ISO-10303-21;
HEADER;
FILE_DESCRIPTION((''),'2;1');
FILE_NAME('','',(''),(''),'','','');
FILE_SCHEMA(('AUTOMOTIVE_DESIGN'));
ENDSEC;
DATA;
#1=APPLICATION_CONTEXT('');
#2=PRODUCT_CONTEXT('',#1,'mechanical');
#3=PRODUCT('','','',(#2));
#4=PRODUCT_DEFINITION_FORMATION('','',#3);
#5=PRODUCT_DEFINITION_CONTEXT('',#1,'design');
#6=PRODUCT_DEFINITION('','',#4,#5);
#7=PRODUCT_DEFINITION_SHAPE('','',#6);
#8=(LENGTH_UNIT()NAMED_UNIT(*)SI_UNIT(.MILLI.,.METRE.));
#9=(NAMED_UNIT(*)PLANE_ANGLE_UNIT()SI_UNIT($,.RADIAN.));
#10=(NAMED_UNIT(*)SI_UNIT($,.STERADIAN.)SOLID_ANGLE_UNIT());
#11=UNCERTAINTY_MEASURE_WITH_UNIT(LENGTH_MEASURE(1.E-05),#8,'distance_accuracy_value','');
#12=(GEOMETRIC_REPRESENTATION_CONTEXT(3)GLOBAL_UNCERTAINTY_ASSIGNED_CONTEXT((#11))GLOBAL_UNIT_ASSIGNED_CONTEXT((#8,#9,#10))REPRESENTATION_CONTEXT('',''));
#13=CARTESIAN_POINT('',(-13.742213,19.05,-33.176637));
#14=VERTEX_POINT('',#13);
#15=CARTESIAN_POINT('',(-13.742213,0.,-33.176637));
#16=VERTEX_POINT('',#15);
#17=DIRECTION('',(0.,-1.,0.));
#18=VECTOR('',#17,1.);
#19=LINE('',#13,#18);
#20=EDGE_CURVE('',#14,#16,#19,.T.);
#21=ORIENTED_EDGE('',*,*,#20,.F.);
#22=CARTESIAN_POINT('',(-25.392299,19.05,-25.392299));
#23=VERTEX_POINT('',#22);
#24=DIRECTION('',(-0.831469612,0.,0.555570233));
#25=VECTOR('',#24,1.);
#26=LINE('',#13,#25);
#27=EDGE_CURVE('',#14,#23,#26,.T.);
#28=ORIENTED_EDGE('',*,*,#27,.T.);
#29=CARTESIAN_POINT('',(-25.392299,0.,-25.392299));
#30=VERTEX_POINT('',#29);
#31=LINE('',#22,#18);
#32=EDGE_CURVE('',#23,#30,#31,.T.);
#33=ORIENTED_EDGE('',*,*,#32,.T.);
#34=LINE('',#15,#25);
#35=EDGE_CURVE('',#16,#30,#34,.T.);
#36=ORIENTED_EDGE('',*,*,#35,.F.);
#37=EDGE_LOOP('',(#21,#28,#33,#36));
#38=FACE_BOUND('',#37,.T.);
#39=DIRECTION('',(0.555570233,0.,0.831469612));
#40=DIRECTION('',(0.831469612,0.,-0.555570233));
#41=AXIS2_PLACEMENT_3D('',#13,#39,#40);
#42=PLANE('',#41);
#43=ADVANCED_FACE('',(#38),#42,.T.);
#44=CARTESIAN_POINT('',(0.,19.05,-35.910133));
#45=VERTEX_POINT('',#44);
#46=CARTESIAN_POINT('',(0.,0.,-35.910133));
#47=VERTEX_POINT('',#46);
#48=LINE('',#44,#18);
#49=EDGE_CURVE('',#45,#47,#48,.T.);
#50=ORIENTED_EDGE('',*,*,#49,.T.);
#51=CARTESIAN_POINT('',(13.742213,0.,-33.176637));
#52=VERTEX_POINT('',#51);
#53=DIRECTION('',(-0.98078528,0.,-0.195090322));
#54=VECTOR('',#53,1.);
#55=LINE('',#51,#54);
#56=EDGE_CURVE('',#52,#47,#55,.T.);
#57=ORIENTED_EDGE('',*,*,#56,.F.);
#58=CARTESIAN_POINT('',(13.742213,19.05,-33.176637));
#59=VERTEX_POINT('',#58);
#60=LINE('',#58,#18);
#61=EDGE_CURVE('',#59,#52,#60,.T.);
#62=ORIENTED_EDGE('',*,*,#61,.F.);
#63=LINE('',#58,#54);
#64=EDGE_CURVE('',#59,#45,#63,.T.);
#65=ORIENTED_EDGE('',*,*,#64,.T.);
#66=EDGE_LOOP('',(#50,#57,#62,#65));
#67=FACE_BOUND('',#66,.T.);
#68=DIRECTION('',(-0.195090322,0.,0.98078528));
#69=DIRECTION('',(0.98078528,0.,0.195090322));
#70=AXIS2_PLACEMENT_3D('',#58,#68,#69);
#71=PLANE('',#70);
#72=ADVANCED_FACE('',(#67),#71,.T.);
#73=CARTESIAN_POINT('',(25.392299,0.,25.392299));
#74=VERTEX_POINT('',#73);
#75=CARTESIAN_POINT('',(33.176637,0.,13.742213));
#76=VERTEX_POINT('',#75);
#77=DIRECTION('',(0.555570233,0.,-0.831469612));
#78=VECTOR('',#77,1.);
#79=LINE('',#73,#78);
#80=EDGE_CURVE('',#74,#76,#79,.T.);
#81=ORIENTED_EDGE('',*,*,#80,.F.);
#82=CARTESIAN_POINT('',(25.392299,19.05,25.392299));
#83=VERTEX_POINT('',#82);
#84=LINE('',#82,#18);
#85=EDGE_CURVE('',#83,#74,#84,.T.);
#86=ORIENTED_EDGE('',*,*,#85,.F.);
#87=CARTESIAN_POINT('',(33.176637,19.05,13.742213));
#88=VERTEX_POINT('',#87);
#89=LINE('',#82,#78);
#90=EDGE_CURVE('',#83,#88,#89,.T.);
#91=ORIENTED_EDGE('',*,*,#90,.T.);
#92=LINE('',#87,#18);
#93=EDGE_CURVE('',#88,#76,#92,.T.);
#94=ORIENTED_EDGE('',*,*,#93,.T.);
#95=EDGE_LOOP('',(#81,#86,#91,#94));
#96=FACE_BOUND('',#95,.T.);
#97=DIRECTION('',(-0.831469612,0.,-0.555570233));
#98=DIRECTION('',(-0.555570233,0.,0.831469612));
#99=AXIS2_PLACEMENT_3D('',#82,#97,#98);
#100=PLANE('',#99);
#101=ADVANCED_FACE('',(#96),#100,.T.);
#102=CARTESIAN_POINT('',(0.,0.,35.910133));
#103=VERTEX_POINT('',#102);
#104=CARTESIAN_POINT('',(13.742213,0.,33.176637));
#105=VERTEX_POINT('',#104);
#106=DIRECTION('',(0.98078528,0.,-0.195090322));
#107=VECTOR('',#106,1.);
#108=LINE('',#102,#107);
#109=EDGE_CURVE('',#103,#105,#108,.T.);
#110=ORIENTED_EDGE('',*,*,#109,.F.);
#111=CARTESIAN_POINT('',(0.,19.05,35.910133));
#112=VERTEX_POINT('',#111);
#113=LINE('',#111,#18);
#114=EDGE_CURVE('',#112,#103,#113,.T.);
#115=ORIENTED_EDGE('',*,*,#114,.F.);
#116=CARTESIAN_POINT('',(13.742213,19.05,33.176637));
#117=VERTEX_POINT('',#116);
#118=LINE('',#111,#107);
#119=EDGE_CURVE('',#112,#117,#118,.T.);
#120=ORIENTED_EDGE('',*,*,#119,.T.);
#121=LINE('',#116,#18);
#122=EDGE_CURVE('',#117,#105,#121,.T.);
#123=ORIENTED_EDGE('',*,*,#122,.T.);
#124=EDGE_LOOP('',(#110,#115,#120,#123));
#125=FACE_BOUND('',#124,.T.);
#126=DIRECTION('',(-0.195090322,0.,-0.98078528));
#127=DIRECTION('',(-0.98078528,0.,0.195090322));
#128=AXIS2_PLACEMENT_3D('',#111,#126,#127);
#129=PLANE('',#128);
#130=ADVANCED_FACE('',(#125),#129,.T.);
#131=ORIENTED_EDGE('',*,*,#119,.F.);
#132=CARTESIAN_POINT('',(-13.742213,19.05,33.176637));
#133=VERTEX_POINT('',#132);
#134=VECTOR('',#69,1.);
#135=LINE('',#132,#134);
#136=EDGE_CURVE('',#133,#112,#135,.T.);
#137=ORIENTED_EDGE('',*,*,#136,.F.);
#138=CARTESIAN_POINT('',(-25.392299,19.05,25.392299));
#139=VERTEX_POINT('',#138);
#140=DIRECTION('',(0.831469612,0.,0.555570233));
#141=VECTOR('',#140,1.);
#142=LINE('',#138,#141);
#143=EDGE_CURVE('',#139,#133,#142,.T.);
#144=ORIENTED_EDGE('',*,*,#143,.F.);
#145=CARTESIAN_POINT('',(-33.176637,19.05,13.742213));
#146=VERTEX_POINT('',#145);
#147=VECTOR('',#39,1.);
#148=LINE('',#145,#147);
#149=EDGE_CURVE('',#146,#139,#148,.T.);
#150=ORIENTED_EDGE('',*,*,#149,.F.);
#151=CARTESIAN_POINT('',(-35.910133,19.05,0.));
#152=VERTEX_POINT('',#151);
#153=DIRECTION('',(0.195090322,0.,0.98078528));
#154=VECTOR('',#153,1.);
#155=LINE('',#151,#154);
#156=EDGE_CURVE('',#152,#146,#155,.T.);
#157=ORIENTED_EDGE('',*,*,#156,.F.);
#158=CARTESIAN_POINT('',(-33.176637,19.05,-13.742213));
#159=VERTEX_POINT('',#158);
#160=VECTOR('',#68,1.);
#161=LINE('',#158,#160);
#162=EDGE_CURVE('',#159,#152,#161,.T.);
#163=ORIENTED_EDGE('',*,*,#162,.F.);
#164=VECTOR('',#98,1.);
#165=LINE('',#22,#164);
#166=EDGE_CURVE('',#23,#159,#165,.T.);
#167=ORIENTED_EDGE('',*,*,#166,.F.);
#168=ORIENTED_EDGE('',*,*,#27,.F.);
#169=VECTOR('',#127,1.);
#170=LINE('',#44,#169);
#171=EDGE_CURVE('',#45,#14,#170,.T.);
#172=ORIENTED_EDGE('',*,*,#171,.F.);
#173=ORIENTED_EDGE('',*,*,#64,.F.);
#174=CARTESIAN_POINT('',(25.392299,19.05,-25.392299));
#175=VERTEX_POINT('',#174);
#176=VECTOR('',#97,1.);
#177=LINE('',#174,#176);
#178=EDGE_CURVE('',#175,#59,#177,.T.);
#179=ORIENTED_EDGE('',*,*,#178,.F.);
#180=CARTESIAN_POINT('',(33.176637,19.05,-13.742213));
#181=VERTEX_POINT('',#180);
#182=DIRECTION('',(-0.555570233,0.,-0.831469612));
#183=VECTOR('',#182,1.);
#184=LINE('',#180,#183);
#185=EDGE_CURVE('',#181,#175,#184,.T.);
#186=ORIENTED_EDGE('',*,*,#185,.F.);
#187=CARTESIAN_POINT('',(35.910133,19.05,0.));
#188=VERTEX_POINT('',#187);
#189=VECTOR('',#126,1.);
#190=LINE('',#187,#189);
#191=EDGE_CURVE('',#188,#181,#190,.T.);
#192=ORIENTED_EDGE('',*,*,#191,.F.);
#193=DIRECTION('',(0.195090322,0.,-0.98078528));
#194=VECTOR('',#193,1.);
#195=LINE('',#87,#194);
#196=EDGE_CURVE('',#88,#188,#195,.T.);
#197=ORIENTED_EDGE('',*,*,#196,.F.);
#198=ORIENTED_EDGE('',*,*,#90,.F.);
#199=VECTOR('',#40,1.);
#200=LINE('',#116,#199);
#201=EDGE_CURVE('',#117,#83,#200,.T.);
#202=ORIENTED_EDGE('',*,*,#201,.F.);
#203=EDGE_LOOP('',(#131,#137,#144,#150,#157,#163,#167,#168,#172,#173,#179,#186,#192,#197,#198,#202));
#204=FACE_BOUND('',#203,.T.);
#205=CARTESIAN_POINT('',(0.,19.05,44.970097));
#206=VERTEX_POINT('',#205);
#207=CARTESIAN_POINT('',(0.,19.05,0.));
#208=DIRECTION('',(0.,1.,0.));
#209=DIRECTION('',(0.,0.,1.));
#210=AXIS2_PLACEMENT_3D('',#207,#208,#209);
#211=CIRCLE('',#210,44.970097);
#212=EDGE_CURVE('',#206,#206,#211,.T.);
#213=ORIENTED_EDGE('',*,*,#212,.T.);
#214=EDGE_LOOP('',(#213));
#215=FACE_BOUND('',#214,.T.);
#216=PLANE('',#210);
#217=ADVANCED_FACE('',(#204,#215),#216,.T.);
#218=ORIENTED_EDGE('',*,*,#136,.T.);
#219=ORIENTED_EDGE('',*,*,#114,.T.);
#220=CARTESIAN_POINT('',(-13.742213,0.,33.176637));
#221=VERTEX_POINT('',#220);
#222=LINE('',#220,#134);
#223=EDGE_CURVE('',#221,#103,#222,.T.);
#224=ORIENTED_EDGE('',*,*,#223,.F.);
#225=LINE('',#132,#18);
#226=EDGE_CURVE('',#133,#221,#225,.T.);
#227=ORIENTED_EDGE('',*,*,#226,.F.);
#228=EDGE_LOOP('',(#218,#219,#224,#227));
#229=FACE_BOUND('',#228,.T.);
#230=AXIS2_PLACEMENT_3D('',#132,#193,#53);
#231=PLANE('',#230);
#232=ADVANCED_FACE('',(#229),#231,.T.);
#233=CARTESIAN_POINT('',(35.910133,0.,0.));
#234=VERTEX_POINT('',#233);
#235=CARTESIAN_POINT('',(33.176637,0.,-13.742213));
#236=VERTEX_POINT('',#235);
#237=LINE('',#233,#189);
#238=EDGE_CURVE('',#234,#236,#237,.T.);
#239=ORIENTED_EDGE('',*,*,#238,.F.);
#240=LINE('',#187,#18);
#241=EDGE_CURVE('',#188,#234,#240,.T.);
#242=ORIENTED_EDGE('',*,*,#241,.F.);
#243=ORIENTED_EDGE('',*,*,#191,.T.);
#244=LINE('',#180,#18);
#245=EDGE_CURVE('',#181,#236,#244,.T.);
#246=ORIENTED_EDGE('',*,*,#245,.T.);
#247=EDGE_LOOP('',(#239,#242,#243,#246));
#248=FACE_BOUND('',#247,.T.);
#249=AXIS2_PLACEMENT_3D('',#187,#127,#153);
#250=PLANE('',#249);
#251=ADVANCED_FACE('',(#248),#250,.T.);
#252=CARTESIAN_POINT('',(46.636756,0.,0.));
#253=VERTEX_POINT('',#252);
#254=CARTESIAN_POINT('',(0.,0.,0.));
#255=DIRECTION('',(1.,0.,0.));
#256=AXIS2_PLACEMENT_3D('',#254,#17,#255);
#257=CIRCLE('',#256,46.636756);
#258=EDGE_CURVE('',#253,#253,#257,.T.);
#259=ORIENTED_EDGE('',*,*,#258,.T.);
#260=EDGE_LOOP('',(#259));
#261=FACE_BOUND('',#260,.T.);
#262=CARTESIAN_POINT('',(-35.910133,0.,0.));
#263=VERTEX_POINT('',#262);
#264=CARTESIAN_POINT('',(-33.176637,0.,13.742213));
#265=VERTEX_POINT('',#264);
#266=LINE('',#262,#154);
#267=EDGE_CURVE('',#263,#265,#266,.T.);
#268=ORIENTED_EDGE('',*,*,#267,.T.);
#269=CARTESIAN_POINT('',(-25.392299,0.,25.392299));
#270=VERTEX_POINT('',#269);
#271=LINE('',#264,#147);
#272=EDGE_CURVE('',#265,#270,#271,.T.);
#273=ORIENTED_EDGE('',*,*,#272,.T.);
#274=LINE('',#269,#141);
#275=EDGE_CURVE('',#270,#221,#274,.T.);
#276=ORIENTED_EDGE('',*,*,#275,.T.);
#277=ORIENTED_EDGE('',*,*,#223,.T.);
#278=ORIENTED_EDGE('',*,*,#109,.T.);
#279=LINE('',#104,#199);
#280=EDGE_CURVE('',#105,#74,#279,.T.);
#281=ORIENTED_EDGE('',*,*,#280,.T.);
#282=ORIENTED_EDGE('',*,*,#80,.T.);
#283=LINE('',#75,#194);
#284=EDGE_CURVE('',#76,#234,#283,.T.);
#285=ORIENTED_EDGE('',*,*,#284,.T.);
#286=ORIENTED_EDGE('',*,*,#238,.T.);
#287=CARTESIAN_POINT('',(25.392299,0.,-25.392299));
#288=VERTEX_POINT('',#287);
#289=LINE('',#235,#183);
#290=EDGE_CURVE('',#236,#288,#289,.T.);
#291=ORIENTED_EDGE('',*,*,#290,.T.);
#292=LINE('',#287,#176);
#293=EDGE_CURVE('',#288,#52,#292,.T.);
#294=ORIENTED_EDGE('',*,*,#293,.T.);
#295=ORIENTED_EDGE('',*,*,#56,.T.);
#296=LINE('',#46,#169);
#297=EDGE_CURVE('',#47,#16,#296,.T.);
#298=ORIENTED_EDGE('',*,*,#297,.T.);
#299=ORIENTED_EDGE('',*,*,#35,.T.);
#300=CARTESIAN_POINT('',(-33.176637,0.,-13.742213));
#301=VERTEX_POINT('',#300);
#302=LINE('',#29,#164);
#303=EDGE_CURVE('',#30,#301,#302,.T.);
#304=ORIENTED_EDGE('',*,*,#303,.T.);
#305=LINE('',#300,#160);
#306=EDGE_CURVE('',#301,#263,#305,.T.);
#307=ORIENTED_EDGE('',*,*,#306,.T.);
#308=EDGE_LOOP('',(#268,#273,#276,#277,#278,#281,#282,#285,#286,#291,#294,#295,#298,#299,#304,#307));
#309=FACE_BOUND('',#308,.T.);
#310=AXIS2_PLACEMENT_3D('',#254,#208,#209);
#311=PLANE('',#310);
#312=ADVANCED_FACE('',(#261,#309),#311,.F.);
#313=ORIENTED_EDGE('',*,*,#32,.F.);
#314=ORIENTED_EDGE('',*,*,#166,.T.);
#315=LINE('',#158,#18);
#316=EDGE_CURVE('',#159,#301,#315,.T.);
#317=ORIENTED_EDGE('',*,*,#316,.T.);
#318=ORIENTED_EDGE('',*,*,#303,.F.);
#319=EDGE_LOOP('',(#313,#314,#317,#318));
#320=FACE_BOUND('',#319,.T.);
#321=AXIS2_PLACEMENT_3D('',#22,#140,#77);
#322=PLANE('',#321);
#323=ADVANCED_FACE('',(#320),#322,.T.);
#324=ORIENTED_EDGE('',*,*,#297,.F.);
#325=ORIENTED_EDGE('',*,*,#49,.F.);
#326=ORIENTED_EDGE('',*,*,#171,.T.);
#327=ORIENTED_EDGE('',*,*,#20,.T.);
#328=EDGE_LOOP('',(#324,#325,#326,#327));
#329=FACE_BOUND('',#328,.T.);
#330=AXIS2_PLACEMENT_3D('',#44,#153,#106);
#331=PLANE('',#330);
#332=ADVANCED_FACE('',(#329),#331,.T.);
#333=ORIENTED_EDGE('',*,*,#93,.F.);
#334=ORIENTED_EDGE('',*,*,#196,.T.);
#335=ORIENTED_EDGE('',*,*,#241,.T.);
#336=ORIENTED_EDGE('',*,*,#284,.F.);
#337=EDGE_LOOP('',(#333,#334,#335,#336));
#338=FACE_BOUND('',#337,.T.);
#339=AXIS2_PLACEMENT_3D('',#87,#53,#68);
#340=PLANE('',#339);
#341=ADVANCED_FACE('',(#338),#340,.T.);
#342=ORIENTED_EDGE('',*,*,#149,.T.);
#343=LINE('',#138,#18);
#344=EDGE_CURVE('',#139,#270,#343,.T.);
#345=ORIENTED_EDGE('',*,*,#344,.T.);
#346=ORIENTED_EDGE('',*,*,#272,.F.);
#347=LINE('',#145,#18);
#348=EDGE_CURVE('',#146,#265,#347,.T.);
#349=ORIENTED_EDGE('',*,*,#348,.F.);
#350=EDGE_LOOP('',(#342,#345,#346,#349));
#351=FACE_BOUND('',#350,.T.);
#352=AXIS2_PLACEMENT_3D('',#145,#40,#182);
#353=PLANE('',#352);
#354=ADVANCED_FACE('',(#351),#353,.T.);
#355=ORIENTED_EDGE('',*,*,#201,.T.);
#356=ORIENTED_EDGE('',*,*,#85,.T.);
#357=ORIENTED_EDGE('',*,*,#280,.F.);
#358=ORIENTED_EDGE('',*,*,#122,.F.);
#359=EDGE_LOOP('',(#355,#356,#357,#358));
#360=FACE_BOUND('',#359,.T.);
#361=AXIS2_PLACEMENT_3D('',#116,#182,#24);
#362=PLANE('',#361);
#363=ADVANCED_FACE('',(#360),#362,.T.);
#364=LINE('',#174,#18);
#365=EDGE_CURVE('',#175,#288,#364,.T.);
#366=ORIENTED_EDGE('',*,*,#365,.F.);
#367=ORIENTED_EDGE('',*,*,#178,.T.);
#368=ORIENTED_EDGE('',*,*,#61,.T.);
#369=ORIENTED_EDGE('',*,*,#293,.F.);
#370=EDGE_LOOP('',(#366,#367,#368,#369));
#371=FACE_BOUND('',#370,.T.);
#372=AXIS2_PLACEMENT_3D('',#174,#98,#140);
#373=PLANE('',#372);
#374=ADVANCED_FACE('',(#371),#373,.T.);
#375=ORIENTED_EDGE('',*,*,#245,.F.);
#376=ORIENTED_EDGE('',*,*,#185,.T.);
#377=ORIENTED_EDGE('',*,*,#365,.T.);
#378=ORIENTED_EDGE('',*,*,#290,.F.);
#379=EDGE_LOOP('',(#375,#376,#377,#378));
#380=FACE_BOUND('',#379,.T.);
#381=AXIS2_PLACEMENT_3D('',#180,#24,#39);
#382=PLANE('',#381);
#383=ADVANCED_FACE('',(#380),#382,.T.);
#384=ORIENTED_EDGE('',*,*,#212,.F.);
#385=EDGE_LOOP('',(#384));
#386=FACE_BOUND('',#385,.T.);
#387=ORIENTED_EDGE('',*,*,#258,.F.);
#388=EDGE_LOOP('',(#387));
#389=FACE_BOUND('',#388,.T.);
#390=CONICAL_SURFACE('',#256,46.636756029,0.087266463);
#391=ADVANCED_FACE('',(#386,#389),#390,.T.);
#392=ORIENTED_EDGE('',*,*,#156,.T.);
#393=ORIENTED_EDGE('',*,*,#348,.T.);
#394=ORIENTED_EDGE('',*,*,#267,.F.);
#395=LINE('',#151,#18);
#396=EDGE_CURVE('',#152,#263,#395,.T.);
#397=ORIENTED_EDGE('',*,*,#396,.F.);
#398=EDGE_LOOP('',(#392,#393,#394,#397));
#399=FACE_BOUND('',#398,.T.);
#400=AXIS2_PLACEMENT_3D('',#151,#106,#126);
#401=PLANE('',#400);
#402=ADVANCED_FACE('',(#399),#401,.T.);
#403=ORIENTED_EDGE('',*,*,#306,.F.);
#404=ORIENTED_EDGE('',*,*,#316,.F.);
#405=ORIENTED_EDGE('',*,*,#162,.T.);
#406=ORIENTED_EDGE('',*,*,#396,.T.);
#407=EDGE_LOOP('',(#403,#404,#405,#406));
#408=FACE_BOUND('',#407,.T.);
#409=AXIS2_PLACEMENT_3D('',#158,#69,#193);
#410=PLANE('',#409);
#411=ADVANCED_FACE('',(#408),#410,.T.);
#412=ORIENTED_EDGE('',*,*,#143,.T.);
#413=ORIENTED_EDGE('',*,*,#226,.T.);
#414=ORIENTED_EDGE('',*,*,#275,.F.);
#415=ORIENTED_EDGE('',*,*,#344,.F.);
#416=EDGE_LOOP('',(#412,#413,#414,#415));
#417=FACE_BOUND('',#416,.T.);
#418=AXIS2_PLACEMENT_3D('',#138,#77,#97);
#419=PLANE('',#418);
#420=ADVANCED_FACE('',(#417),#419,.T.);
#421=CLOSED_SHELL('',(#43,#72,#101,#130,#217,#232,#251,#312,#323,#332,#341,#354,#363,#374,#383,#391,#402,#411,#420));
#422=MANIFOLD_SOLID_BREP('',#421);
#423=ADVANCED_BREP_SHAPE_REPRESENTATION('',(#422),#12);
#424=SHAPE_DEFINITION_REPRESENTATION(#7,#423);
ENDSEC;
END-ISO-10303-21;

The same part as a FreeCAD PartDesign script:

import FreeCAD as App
import Part
import Sketcher

V = App.Vector
Q = App.Units.Quantity

doc = App.newDocument("Part")
body = doc.addObject("PartDesign::Body", "Body")

sketch1 = doc.addObject("Sketcher::SketchObject", "Sketch")
body.addObject(sketch1)
sketch1.AttachmentSupport = (doc.XZ_Plane, [""])
sketch1.MapMode = "FlatFace"
sketch1.addGeometry([
    Part.LineSegment(V(-55, 0, 0), V(-51, 21, 0)),
    Part.LineSegment(V(-51, 21, 0), V(-39, 39, 0)),
    Part.LineSegment(V(-39, 39, 0), V(-21, 51, 0)),
    Part.LineSegment(V(-21, 51, 0), V(0, 55, 0)),
    Part.LineSegment(V(0, 55, 0), V(21, 51, 0)),
    Part.LineSegment(V(21, 51, 0), V(39, 39, 0)),
    Part.LineSegment(V(39, 39, 0), V(51, 21, 0)),
    Part.LineSegment(V(51, 21, 0), V(55, 0, 0)),
    Part.LineSegment(V(55, 0, 0), V(51, -21, 0)),
    Part.LineSegment(V(51, -21, 0), V(39, -39, 0)),
    Part.LineSegment(V(39, -39, 0), V(21, -51, 0)),
    Part.LineSegment(V(21, -51, 0), V(0, -55, 0)),
    Part.LineSegment(V(0, -55, 0), V(-21, -51, 0)),
    Part.LineSegment(V(-21, -51, 0), V(-39, -39, 0)),
    Part.LineSegment(V(-39, -39, 0), V(-51, -21, 0)),
    Part.LineSegment(V(-51, -21, 0), V(-55, 0, 0)),
    Part.LineSegment(V(-33, 14, 0), V(-36, 0, 0)),
    Part.LineSegment(V(-36, 0, 0), V(-33, -14, 0)),
    Part.LineSegment(V(-33, -14, 0), V(-25, -25, 0)),
    Part.LineSegment(V(-25, -25, 0), V(-14, -33, 0)),
    Part.LineSegment(V(-14, -33, 0), V(0, -36, 0)),
    Part.LineSegment(V(0, -36, 0), V(14, -33, 0)),
    Part.LineSegment(V(14, -33, 0), V(25, -25, 0)),
    Part.LineSegment(V(25, -25, 0), V(33, -14, 0)),
    Part.LineSegment(V(33, -14, 0), V(36, 0, 0)),
    Part.LineSegment(V(36, 0, 0), V(33, 14, 0)),
    Part.LineSegment(V(33, 14, 0), V(25, 25, 0)),
    Part.LineSegment(V(25, 25, 0), V(14, 33, 0)),
    Part.LineSegment(V(14, 33, 0), V(0, 36, 0)),
    Part.LineSegment(V(0, 36, 0), V(-14, 33, 0)),
    Part.LineSegment(V(-14, 33, 0), V(-25, 25, 0)),
    Part.LineSegment(V(-25, 25, 0), V(-33, 14, 0)),
], False)
sketch1.addConstraint([
    Sketcher.Constraint("Coincident", 0, 2, 1, 1),
    Sketcher.Constraint("Coincident", 1, 2, 2, 1),
    Sketcher.Constraint("Coincident", 2, 2, 3, 1),
    Sketcher.Constraint("Coincident", 3, 2, 4, 1),
    Sketcher.Constraint("Coincident", 4, 2, 5, 1),
    Sketcher.Constraint("Coincident", 5, 2, 6, 1),
    Sketcher.Constraint("Coincident", 6, 2, 7, 1),
    Sketcher.Constraint("Coincident", 7, 2, 8, 1),
    Sketcher.Constraint("Coincident", 8, 2, 9, 1),
    Sketcher.Constraint("Coincident", 9, 2, 10, 1),
    Sketcher.Constraint("Coincident", 10, 2, 11, 1),
    Sketcher.Constraint("Coincident", 11, 2, 12, 1),
    Sketcher.Constraint("Coincident", 12, 2, 13, 1),
    Sketcher.Constraint("Coincident", 13, 2, 14, 1),
    Sketcher.Constraint("Coincident", 14, 2, 15, 1),
    Sketcher.Constraint("Coincident", 15, 2, 0, 1),
    Sketcher.Constraint("Coincident", 16, 2, 17, 1),
    Sketcher.Constraint("Coincident", 17, 2, 18, 1),
    Sketcher.Constraint("Coincident", 18, 2, 19, 1),
    Sketcher.Constraint("Coincident", 19, 2, 20, 1),
    Sketcher.Constraint("Coincident", 20, 2, 21, 1),
    Sketcher.Constraint("Coincident", 21, 2, 22, 1),
    Sketcher.Constraint("Coincident", 22, 2, 23, 1),
    Sketcher.Constraint("Coincident", 23, 2, 24, 1),
    Sketcher.Constraint("Coincident", 24, 2, 25, 1),
    Sketcher.Constraint("Coincident", 25, 2, 26, 1),
    Sketcher.Constraint("Coincident", 26, 2, 27, 1),
    Sketcher.Constraint("Coincident", 27, 2, 28, 1),
    Sketcher.Constraint("Coincident", 28, 2, 29, 1),
    Sketcher.Constraint("Coincident", 29, 2, 30, 1),
    Sketcher.Constraint("Coincident", 30, 2, 31, 1),
    Sketcher.Constraint("Coincident", 31, 2, 16, 1),
    Sketcher.Constraint("Symmetric", 0, 2, 8, 2, -1, 1),
    Sketcher.Constraint("Symmetric", 1, 2, 9, 2, -1, 1),
    Sketcher.Constraint("Symmetric", 2, 2, 10, 2, -1, 1),
    Sketcher.Constraint("Symmetric", 3, 2, 11, 2, -1, 1),
    Sketcher.Constraint("Symmetric", 4, 2, 12, 2, -1, 1),
    Sketcher.Constraint("Symmetric", 5, 2, 13, 2, -1, 1),
    Sketcher.Constraint("Symmetric", 6, 2, 14, 2, -1, 1),
    Sketcher.Constraint("Symmetric", 7, 2, 15, 2, -1, 1),
    Sketcher.Constraint("Symmetric", 16, 2, 24, 2, -1, 1),
    Sketcher.Constraint("Symmetric", 17, 2, 25, 2, -1, 1),
    Sketcher.Constraint("Symmetric", 18, 2, 26, 2, -1, 1),
    Sketcher.Constraint("Symmetric", 19, 2, 27, 2, -1, 1),
    Sketcher.Constraint("Symmetric", 20, 2, 28, 2, -1, 1),
    Sketcher.Constraint("Symmetric", 21, 2, 29, 2, -1, 1),
    Sketcher.Constraint("Symmetric", 22, 2, 30, 2, -1, 1),
    Sketcher.Constraint("Symmetric", 23, 2, 31, 2, -1, 1),
    Sketcher.Constraint("Symmetric", 2, 2, 4, 2, -2),
    Sketcher.Constraint("Symmetric", 1, 2, 5, 2, -2),
    Sketcher.Constraint("Symmetric", 0, 2, 6, 2, -2),
    Sketcher.Constraint("Symmetric", 19, 2, 21, 2, -2),
    Sketcher.Constraint("Symmetric", 18, 2, 22, 2, -2),
    Sketcher.Constraint("Symmetric", 17, 2, 23, 2, -2),
    Sketcher.Constraint("PointOnObject", 3, 2, -2),
    Sketcher.Constraint("PointOnObject", 7, 2, -1),
    Sketcher.Constraint("PointOnObject", 16, 2, -1),
    Sketcher.Constraint("PointOnObject", 20, 2, -2),
    Sketcher.Constraint("Perpendicular", 0, 4),
    Sketcher.Constraint("Perpendicular", 1, 5),
    Sketcher.Constraint("Perpendicular", 12, 16),
    Sketcher.Constraint("Parallel", 14, 18),
    Sketcher.Constraint("Parallel", 13, 19),
    Sketcher.Constraint("Perpendicular", 16, 20),
    Sketcher.Constraint("Equal", 0, 1),
    Sketcher.Constraint("Equal", 1, 2),
    Sketcher.Constraint("Equal", 2, 3),
    Sketcher.Constraint("Equal", 17, 18),
    Sketcher.Constraint("Equal", 18, 19),
    Sketcher.Constraint("Equal", 19, 20),
    Sketcher.Constraint("Distance", 0, Q("0.85 in")),
    Sketcher.Constraint("Angle", 0, Q("78.75 deg")),
    Sketcher.Constraint("Angle", 1, Q("56.25 deg")),
    Sketcher.Constraint("DistanceX", 18, 2, -1, 1, 25.392299),
])
pad1 = doc.addObject("PartDesign::Pad", "Pad")
body.addObject(pad1)
pad1.Profile = sketch1
pad1.Length = Q("0.75 in")
pad1.Reversed = True

sketch2 = doc.addObject("Sketcher::SketchObject", "Sketch001")
body.addObject(sketch2)
sketch2.AttachmentSupport = (doc.XY_Plane, [""])
sketch2.MapMode = "FlatFace"
sketch2.addGeometry([
    Part.LineSegment(V(-47, 0, 0), V(-44, 25, 0)),
    Part.LineSegment(V(-44, 25, 0), V(-115, 25, 0)),
    Part.LineSegment(V(-115, 25, 0), V(-115, 0, 0)),
    Part.LineSegment(V(-115, 0, 0), V(-47, 0, 0)),
], False)
sketch2.addConstraint([
    Sketcher.Constraint("Coincident", 0, 2, 1, 1),
    Sketcher.Constraint("Coincident", 1, 2, 2, 1),
    Sketcher.Constraint("Coincident", 2, 2, 3, 1),
    Sketcher.Constraint("Coincident", 3, 2, 0, 1),
    Sketcher.Constraint("Horizontal", 1),
    Sketcher.Constraint("Vertical", 2),
    Sketcher.Constraint("Horizontal", 3),
    Sketcher.Constraint("PointOnObject", 2, 2, -1),
    Sketcher.Constraint("Angle", 0, Q("85 deg")),
    Sketcher.Constraint("DistanceX", 0, 2, -1, 1, Q("1.75 in")),
    Sketcher.Constraint("Distance", 0, 25.090212),
    Sketcher.Constraint("DistanceX", 1, 2, 1, 1, 70.513193),
])
groove = doc.addObject("PartDesign::Groove", "Groove")
body.addObject(groove)
groove.Profile = sketch2
groove.ReferenceAxis = (sketch2, ["V_Axis"])
groove.Angle = 360

doc.recompute()
